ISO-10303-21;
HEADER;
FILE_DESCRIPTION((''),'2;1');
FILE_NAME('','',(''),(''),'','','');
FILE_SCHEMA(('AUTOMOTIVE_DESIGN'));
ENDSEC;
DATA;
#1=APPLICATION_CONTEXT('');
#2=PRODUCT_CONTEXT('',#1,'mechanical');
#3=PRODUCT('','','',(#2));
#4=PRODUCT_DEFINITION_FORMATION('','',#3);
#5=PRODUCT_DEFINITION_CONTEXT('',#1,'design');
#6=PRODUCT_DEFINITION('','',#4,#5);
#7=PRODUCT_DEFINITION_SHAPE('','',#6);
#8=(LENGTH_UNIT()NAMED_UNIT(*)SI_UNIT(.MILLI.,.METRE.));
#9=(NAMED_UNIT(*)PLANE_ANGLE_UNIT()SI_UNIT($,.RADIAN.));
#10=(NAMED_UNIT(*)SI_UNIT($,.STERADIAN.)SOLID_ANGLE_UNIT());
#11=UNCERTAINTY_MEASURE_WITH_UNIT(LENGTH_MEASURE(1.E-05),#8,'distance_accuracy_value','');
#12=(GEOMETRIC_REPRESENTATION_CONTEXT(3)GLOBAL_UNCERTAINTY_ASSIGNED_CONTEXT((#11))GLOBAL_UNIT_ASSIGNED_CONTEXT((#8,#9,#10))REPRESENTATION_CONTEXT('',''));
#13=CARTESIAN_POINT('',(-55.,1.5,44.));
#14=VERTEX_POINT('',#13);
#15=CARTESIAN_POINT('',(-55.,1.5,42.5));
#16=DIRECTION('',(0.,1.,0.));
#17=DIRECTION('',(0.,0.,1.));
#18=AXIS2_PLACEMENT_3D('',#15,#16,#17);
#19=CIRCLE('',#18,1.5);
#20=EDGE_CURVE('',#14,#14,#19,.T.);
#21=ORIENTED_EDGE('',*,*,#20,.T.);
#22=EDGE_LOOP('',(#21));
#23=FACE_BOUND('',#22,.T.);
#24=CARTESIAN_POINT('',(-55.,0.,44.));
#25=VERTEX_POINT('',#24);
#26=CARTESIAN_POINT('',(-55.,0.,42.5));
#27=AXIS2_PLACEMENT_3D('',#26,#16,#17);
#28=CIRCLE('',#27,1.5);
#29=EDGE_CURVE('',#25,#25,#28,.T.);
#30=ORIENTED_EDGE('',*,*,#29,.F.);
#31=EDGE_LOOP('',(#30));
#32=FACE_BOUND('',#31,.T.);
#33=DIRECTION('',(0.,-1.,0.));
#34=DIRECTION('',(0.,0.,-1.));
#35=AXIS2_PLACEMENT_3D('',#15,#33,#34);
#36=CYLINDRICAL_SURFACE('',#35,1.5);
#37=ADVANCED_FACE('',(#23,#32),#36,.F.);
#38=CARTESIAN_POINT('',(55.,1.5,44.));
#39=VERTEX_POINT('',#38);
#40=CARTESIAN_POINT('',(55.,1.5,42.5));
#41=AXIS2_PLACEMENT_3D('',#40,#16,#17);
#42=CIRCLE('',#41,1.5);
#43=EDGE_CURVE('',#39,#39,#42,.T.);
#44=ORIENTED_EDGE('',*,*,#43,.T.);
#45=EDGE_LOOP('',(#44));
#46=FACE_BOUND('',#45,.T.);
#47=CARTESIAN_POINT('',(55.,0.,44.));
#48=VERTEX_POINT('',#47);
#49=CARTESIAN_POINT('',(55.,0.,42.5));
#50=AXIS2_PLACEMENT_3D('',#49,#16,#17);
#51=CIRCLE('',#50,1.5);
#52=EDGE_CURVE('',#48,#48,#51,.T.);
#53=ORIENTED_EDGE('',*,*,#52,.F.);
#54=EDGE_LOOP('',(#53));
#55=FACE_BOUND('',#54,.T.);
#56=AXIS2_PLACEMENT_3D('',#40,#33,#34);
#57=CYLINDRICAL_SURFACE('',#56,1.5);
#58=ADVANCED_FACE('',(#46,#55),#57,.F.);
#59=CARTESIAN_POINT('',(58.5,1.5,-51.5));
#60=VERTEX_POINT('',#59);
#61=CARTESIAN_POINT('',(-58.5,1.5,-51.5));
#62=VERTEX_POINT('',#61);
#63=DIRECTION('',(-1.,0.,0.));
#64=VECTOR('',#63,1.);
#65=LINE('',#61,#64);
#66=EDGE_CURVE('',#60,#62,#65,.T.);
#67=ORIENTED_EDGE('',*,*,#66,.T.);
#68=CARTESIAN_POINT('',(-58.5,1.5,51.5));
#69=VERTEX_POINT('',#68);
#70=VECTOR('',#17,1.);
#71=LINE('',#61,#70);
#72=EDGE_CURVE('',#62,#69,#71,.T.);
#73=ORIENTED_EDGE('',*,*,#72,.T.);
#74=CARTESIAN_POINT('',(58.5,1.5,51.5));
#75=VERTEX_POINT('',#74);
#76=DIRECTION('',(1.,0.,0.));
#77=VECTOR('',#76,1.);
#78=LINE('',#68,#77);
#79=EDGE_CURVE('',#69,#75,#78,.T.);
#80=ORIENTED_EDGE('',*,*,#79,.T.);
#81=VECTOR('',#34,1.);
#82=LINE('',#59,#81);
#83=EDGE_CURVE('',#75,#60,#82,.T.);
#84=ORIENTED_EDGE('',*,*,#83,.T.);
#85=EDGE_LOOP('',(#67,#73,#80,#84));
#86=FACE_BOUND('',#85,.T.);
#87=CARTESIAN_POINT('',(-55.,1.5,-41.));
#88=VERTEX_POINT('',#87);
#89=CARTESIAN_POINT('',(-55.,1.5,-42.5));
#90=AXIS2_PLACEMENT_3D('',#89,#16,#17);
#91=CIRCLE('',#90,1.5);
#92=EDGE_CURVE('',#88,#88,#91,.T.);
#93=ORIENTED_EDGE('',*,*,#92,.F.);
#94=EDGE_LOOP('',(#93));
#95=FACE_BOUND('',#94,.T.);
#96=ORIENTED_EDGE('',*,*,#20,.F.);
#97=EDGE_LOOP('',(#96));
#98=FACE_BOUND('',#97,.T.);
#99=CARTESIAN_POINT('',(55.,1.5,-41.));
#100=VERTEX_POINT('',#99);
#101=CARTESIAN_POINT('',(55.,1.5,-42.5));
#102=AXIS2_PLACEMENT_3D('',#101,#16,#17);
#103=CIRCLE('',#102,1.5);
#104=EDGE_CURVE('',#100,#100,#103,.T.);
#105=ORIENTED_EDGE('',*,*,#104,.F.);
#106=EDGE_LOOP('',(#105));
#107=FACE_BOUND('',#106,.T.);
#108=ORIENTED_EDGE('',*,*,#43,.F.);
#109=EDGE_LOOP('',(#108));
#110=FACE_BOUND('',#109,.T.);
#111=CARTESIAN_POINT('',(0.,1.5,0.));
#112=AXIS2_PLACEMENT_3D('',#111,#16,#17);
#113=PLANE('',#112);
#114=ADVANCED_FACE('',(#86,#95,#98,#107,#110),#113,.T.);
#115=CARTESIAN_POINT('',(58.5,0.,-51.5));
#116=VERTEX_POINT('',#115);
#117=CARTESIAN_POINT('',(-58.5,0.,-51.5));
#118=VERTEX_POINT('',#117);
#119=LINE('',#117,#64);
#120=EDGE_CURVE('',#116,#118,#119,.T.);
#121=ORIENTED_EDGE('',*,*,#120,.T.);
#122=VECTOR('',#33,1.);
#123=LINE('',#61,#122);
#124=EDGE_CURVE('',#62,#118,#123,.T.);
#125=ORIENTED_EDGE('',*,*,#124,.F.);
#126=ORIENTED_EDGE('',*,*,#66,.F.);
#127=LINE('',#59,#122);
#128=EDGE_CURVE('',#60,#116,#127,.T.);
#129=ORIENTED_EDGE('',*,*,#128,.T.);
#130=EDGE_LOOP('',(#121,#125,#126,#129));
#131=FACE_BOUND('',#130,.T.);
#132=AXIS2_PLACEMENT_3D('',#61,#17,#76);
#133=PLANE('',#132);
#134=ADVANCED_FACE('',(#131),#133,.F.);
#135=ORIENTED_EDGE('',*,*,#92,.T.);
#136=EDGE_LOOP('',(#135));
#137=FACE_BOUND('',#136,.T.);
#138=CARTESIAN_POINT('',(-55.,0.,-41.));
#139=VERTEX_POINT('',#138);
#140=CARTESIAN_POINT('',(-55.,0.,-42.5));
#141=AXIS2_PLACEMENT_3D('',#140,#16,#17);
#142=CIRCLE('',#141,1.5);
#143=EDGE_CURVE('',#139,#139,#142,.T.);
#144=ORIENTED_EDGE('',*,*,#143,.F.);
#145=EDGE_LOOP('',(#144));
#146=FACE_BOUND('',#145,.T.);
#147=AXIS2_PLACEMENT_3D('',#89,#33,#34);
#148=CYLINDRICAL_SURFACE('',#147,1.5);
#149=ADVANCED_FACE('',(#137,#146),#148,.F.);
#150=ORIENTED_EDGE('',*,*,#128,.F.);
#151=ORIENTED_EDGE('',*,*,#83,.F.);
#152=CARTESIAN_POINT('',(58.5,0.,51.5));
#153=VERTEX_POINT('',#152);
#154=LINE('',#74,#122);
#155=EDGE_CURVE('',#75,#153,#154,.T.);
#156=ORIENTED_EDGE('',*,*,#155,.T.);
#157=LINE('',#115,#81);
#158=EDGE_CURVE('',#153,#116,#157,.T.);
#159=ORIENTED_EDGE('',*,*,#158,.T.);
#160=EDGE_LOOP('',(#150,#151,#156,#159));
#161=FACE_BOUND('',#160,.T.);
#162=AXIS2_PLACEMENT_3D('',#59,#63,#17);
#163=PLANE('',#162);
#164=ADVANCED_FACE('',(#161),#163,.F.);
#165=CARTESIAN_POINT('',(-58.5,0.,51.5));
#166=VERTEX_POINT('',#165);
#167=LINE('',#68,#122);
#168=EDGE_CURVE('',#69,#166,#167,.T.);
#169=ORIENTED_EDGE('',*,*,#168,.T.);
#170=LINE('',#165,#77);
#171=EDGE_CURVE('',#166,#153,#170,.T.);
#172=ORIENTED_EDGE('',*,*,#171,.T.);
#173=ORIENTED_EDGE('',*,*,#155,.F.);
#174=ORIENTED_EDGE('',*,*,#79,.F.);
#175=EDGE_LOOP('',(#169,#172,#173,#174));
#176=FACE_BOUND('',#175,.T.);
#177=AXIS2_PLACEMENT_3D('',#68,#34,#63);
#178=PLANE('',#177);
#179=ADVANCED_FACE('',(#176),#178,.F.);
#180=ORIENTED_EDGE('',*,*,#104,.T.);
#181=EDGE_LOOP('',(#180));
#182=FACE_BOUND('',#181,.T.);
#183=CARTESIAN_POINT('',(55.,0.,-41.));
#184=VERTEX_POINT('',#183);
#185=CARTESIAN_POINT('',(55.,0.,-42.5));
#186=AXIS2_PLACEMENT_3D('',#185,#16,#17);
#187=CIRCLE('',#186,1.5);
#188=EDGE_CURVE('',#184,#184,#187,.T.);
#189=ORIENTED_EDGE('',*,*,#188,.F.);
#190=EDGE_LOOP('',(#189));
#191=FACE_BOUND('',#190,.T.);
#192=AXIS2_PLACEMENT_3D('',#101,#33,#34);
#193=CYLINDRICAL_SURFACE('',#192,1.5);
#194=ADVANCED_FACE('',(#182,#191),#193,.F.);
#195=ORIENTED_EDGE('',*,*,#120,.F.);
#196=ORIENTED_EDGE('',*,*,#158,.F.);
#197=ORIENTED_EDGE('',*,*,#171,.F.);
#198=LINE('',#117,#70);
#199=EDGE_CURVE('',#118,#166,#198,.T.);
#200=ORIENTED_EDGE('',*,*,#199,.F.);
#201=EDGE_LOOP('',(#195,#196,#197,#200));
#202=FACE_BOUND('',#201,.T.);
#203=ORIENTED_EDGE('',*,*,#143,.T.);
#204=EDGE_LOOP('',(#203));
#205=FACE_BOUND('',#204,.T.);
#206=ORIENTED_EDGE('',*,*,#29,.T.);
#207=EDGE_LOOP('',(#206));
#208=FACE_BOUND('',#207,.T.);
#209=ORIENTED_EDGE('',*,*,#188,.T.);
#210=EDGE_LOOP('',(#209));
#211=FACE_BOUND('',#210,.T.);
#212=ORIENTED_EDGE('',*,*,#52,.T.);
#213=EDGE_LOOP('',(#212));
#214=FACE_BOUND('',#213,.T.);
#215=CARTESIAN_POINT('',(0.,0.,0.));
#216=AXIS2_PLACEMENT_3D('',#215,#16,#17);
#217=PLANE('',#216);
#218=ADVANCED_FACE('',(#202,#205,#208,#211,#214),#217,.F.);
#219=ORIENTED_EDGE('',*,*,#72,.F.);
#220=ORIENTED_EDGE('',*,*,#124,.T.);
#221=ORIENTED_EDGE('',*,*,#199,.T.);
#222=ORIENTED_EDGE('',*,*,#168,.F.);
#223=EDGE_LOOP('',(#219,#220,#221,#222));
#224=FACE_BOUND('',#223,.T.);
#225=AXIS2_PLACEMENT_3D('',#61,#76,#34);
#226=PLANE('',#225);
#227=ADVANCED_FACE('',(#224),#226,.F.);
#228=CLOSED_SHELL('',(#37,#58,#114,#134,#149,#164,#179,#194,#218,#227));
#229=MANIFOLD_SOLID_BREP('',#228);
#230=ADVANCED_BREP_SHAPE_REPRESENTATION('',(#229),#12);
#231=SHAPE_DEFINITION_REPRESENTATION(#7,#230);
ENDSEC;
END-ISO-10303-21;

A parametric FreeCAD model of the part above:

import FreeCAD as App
import Part
import Sketcher

V = App.Vector
Q = App.Units.Quantity


def add_polygon(sketch, points):
    """Adds a closed chain of lines whose ends are joined by coincident constraints."""
    first, n = sketch.GeometryCount, len(points)
    for a, b in zip(points, points[1:] + points[:1]):
        sketch.addGeometry(Part.LineSegment(App.Vector(*a, 0), App.Vector(*b, 0)), False)
    for i in range(n):
        sketch.addConstraint(Sketcher.Constraint("Coincident", first + i, 2, first + (i + 1) % n, 1))

doc = App.newDocument("Part")
body = doc.addObject("PartDesign::Body", "Body")

sketch1 = body.newObject("Sketcher::SketchObject", "Sketch")
sketch1.AttachmentSupport = (doc.getObject("XZ_Plane"), [""])
sketch1.MapMode = "FlatFace"
add_polygon(sketch1, [(-58.5, -51.5), (-58.5, 51.5), (58.5, 51.5), (58.5, -51.5)])
sketch1.addGeometry(Part.Circle(V(-55, 42.5, 0), V(0, 0, 1), 1.5), False)
sketch1.addGeometry(Part.Circle(V(55, 42.5, 0), V(0, 0, 1), 1.5), False)
sketch1.addGeometry(Part.Circle(V(-55, -42.5, 0), V(0, 0, 1), 1.5), False)
sketch1.addGeometry(Part.Circle(V(55, -42.5, 0), V(0, 0, 1), 1.5), False)
sketch1.addConstraint([
    Sketcher.Constraint("Vertical", 0),
    Sketcher.Constraint("Horizontal", 1),
    Sketcher.Constraint("Vertical", 2),
    Sketcher.Constraint("Horizontal", 3),
    Sketcher.Constraint("Equal", 4, 5),
    Sketcher.Constraint("Equal", 5, 6),
    Sketcher.Constraint("Equal", 6, 7),
    Sketcher.Constraint("Symmetric", 5, 3, 6, 3, -1, 1),
    Sketcher.Constraint("Symmetric", 4, 3, 7, 3, -1, 1),
    Sketcher.Constraint("Symmetric", 0, 2, 2, 2, -1, 1),
    Sketcher.Constraint("Symmetric", 4, 3, 5, 3, -2),
    Sketcher.Constraint("Diameter", 4, Q("3 mm")),
    Sketcher.Constraint("DistanceX", 1, 1, 1, 2, Q("117 mm")),
    Sketcher.Constraint("DistanceY", 0, 1, 0, 2, Q("103 mm")),
    Sketcher.Constraint("DistanceX", 4, 3, -1, 1, Q("55 mm")),
    Sketcher.Constraint("DistanceY", 6, 3, 4, 3, Q("85 mm")),
])
pad1 = body.newObject("PartDesign::Pad", "Pad")
pad1.Profile = sketch1
pad1.Length = 1.5
pad1.Reversed = True

doc.recompute()
